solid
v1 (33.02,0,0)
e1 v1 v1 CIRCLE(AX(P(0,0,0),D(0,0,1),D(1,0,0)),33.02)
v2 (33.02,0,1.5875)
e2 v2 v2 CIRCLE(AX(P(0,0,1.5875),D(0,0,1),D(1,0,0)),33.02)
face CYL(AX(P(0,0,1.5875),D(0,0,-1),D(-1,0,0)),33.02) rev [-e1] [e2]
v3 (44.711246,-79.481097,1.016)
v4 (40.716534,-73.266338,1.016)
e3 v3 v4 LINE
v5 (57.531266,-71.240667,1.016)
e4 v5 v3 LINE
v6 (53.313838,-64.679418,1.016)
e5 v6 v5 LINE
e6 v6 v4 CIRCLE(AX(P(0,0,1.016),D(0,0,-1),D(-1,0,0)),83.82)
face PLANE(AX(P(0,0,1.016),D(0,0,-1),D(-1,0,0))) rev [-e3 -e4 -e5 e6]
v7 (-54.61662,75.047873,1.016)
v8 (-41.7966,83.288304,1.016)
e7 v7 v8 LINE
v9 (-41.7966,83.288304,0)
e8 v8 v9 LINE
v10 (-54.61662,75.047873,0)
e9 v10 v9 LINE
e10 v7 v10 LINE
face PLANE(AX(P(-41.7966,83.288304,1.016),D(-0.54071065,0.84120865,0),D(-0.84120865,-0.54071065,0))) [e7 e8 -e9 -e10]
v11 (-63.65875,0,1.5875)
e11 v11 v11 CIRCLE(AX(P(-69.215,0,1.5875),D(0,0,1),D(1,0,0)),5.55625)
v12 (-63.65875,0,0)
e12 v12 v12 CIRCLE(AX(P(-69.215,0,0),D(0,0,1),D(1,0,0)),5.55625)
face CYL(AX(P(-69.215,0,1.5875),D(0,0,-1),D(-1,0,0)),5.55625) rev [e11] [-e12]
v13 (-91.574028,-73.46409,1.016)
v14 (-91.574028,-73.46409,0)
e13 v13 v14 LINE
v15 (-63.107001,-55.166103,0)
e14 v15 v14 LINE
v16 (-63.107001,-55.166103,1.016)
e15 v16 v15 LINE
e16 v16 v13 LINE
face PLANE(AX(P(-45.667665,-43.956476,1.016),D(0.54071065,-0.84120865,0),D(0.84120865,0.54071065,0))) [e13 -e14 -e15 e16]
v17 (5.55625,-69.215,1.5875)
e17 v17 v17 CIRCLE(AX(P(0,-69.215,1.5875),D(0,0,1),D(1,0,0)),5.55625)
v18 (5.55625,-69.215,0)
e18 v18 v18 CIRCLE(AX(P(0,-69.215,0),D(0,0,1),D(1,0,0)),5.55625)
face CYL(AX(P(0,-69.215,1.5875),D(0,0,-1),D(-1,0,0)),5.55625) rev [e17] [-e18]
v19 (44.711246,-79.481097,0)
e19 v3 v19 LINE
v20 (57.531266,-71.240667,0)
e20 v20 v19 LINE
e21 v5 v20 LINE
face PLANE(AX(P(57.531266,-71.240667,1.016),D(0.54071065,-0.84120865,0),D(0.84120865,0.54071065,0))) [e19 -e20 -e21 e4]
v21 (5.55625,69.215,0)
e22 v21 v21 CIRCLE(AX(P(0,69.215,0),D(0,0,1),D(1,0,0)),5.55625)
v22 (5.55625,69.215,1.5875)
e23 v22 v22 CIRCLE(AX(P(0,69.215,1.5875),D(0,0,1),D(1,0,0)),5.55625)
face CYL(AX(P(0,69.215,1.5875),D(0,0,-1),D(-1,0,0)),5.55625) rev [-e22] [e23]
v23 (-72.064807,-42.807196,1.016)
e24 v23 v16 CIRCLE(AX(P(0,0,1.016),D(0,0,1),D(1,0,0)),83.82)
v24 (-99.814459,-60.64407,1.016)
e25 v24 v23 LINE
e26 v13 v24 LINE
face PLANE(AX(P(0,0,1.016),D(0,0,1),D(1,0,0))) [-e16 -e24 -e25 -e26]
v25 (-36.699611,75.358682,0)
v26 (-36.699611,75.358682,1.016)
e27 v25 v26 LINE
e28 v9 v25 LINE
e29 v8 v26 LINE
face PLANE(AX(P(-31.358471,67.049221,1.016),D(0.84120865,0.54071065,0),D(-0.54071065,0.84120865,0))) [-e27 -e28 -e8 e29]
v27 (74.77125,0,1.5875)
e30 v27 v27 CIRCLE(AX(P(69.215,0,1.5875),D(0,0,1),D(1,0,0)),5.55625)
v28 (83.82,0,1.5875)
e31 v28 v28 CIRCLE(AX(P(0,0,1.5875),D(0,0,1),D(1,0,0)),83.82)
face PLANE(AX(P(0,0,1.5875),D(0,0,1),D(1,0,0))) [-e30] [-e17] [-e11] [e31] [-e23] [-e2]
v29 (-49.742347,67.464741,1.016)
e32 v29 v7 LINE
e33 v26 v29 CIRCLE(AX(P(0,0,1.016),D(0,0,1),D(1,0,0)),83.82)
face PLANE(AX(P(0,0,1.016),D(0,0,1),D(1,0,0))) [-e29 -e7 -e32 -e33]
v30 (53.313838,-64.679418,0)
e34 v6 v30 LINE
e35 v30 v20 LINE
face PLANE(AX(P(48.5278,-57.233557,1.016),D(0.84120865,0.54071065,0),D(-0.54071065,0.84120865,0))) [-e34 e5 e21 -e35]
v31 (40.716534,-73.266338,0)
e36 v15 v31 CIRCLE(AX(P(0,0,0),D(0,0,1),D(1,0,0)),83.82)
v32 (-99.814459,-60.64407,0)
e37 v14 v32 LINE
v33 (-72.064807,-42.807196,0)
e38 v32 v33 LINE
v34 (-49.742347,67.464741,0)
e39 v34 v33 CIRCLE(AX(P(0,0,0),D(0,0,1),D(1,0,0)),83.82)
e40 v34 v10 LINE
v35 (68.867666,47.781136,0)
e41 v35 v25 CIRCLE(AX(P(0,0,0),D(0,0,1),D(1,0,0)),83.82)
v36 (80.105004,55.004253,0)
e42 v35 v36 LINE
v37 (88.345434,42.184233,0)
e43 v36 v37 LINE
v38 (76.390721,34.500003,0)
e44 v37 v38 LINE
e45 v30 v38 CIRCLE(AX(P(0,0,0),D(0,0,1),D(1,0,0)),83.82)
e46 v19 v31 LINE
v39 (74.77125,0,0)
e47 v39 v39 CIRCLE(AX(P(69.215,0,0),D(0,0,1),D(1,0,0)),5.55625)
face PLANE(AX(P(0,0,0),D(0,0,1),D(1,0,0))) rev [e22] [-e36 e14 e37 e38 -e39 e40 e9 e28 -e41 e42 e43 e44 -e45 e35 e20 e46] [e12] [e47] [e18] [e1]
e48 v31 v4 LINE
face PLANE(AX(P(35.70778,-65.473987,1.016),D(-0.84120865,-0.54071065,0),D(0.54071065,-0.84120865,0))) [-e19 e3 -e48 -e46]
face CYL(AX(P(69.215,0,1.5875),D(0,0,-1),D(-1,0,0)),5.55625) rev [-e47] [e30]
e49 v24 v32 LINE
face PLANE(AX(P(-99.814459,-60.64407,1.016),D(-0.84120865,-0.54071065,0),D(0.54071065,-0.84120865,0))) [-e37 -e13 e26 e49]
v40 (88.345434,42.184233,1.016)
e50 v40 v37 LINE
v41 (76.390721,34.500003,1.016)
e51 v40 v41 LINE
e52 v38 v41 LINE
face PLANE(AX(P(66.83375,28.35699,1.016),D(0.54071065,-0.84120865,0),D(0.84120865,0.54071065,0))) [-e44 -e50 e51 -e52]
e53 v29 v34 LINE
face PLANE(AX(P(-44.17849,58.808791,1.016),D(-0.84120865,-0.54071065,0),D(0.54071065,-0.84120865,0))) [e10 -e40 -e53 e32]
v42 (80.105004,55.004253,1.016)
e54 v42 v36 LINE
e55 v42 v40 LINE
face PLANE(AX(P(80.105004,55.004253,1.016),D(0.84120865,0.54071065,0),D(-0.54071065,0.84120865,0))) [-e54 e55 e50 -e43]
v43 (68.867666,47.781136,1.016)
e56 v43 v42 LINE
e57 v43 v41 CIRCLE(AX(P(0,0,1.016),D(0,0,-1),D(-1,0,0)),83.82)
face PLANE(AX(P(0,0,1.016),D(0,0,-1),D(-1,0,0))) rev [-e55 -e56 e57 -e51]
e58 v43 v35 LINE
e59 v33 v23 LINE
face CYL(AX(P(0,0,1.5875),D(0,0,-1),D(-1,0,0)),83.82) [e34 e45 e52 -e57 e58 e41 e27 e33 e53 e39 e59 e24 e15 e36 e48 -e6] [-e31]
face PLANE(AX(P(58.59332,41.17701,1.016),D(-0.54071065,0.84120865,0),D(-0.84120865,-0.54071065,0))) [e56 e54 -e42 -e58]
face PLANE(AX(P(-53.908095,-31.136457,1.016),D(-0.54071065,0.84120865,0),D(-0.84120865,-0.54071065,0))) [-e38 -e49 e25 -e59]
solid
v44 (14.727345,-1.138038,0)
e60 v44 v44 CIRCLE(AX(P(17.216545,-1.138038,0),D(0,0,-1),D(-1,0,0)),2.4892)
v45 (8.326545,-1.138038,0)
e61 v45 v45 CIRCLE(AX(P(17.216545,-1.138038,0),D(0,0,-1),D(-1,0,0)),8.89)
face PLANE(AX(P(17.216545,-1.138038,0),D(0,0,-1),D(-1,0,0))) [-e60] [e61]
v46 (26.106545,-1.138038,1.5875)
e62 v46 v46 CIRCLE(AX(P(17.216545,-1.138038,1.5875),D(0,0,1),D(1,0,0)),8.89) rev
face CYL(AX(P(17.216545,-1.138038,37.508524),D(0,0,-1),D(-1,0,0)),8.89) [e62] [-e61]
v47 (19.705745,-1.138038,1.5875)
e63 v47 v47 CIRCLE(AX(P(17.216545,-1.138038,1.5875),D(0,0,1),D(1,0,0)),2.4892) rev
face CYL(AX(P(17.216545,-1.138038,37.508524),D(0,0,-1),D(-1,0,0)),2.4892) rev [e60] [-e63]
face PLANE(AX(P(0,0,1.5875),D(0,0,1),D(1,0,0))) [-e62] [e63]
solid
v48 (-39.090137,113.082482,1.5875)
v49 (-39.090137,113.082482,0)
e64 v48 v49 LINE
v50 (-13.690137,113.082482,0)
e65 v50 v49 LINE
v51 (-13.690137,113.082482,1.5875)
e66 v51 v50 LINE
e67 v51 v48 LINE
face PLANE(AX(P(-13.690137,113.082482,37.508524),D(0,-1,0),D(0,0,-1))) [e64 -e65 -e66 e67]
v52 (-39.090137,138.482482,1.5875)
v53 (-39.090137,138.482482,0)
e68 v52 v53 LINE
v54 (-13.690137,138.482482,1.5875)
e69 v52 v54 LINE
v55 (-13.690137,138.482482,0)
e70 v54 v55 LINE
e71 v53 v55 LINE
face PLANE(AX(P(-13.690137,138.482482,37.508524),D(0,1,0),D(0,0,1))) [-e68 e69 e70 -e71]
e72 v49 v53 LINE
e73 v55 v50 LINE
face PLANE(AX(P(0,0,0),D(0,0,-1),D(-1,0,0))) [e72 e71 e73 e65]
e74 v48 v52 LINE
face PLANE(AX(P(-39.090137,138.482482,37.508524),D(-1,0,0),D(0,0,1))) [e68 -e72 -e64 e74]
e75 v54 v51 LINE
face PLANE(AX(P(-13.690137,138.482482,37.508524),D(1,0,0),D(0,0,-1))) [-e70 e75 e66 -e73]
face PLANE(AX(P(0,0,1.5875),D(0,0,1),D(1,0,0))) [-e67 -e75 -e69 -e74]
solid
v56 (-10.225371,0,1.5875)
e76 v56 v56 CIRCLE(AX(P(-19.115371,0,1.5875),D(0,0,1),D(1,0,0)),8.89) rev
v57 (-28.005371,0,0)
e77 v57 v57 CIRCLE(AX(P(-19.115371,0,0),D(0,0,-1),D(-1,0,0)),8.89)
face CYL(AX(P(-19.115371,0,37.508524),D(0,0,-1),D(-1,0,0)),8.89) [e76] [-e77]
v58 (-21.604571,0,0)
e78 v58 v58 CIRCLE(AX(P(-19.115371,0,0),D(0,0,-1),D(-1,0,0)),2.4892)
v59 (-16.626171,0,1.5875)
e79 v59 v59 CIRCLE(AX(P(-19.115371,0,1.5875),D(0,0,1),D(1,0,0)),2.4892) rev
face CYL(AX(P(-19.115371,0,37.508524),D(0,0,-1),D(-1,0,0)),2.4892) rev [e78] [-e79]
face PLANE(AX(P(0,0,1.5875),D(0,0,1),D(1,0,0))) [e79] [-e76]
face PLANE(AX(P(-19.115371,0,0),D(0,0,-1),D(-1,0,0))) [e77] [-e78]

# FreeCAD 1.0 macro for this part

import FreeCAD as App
import Part
import Sketcher
Q = App.Units.Quantity


def add_polygon(sketch, points):
    """Adds a closed chain of lines whose ends are joined by coincident constraints."""
    first, n = sketch.GeometryCount, len(points)
    for a, b in zip(points, points[1:] + points[:1]):
        sketch.addGeometry(Part.LineSegment(App.Vector(*a, 0), App.Vector(*b, 0)), False)
    for i in range(n):
        sketch.addConstraint(Sketcher.Constraint("Coincident", first + i, 2, first + (i + 1) % n, 1))

doc = App.newDocument("Part")
body = doc.addObject("PartDesign::Body", "Body")

# Sketch on XY plane
sketch1 = doc.addObject("Sketcher::SketchObject", "Sketch")
body.addObject(sketch1)
sketch1.AttachmentSupport = (doc.XY_Plane, [""])
sketch1.MapMode = "FlatFace"
sketch1.addGeometry(Part.Circle(App.Vector(0, 0, 0), App.Vector(0, 0, 1), 83.82), False)
sketch1.addGeometry(Part.Circle(App.Vector(0, -69.215, 0), App.Vector(0, 0, 1), 5.55625), False)
sketch1.addGeometry(Part.Circle(App.Vector(-69.215, 0, 0), App.Vector(0, 0, 1), 5.55625), False)
sketch1.addGeometry(Part.Circle(App.Vector(0, 0, 0), App.Vector(0, 0, 1), 33.02), False)
sketch1.addGeometry(Part.Circle(App.Vector(69.215, 0, 0), App.Vector(0, 0, 1), 5.55625), False)
sketch1.addGeometry(Part.Circle(App.Vector(0, 69.215, 0), App.Vector(0, 0, 1), 5.55625), False)
sketch1.addConstraint(Sketcher.Constraint("Coincident", 0, 3, -1, 1))
sketch1.addConstraint(Sketcher.Constraint("Coincident", 3, 3, -1, 1))
sketch1.addConstraint(Sketcher.Constraint("Equal", 1, 2))
sketch1.addConstraint(Sketcher.Constraint("Equal", 2, 4))
sketch1.addConstraint(Sketcher.Constraint("Equal", 4, 5))
sketch1.addConstraint(Sketcher.Constraint("Symmetric", 2, 3, 4, 3, -1, 1))
sketch1.addConstraint(Sketcher.Constraint("Symmetric", 1, 3, 5, 3, -1, 1))
sketch1.addConstraint(Sketcher.Constraint("PointOnObject", 1, 3, -2))
sketch1.addConstraint(Sketcher.Constraint("PointOnObject", 2, 3, -1))
sketch1.addConstraint(Sketcher.Constraint("Diameter", 0, Q("6.6 in")))
sketch1.addConstraint(Sketcher.Constraint("Diameter", 3, Q("2.6 in")))
sketch1.addConstraint(Sketcher.Constraint("Diameter", 1, Q("0.4375 in")))
sketch1.addConstraint(Sketcher.Constraint("DistanceX", 2, 3, 4, 3, Q("5.45 in")))
sketch1.addConstraint(Sketcher.Constraint("DistanceY", 1, 3, 5, 3, Q("5.45 in")))
pad1 = doc.addObject("PartDesign::Pad", "Pad")
body.addObject(pad1)
pad1.Profile = sketch1
pad1.Length = Q("0.0625 in")

# Sketch on XY plane
sketch2 = doc.addObject("Sketcher::SketchObject", "Sketch001")
body.addObject(sketch2)
sketch2.AttachmentSupport = (doc.XY_Plane, [""])
sketch2.MapMode = "FlatFace"
add_polygon(sketch2, [(66.83375, 28.35699), (58.59332, 41.17701), (80.105004, 55.004253), (88.345434, 42.184233)])  # lines 0-3
add_polygon(sketch2, [(35.70778, -65.473987), (48.5278, -57.233557), (57.531266, -71.240667), (44.711246, -79.481097)])  # lines 4-7
add_polygon(sketch2, [(-31.358471, 67.049221), (-44.17849, 58.808791), (-54.61662, 75.047873), (-41.7966, 83.288304)])  # lines 8-11
add_polygon(sketch2, [(-53.908095, -31.136457), (-45.667665, -43.956476), (-91.574028, -73.46409), (-99.814459, -60.64407)])  # lines 12-15
sketch2.addConstraint(Sketcher.Constraint("Perpendicular", 0, 1))
sketch2.addConstraint(Sketcher.Constraint("Perpendicular", 1, 2))
sketch2.addConstraint(Sketcher.Constraint("Perpendicular", 2, 3))
sketch2.addConstraint(Sketcher.Constraint("Parallel", 3, 4))
sketch2.addConstraint(Sketcher.Constraint("Perpendicular", 4, 5))
sketch2.addConstraint(Sketcher.Constraint("Perpendicular", 5, 6))
sketch2.addConstraint(Sketcher.Constraint("Perpendicular", 6, 7))
sketch2.addConstraint(Sketcher.Constraint("Perpendicular", 7, 8))
sketch2.addConstraint(Sketcher.Constraint("Perpendicular", 8, 9))
sketch2.addConstraint(Sketcher.Constraint("Perpendicular", 9, 10))
sketch2.addConstraint(Sketcher.Constraint("Perpendicular", 10, 11))
sketch2.addConstraint(Sketcher.Constraint("Parallel", 11, 12))
sketch2.addConstraint(Sketcher.Constraint("Perpendicular", 12, 13))
sketch2.addConstraint(Sketcher.Constraint("Perpendicular", 13, 14))
sketch2.addConstraint(Sketcher.Constraint("Perpendicular", 14, 15))
sketch2.addConstraint(Sketcher.Constraint("Equal", 2, 4))
sketch2.addConstraint(Sketcher.Constraint("Equal", 6, 8))
sketch2.addConstraint(Sketcher.Constraint("Equal", 10, 12))
sketch2.addConstraint(Sketcher.Constraint("Distance", 0, Q("0.6 in")))
sketch2.addConstraint(Sketcher.Constraint("DistanceX", -1, 1, 4, 2, Q("48.5278 mm")))
sketch2.addConstraint(Sketcher.Constraint("DistanceX", 10, 2, -1, 1, Q("41.7966 mm")))
sketch2.addConstraint(Sketcher.Constraint("DistanceY", 5, 2, 2, 2, Q("113.4249 mm")))
sketch2.addConstraint(Sketcher.Constraint("DistanceY", 3, 2, 8, 2, Q("30.451801 mm")))
sketch2.addConstraint(Sketcher.Constraint("Distance", 1, Q("25.572352 mm")))
sketch2.addConstraint(Sketcher.Constraint("Distance", 5, Q("16.651171 mm")))
sketch2.addConstraint(Sketcher.Constraint("Distance", 13, Q("54.571911 mm")))
sketch2.addConstraint(Sketcher.Constraint("DistanceX", -1, 1, 0, 2, Q("58.59332 mm")))
sketch2.addConstraint(Sketcher.Constraint("DistanceY", -1, 1, 0, 2, Q("41.17701 mm")))
sketch2.addConstraint(Sketcher.Constraint("DistanceX", -1, 1, 3, 2, Q("66.83375 mm")))
sketch2.addConstraint(Sketcher.Constraint("DistanceX", 8, 2, -1, 1, Q("44.17849 mm")))
sketch2.addConstraint(Sketcher.Constraint("DistanceX", 13, 2, -1, 1, Q("91.574028 mm")))
sketch2.addConstraint(Sketcher.Constraint("DistanceY", 13, 2, -1, 1, Q("73.46409 mm")))
pad2 = doc.addObject("PartDesign::Pad", "Pad001")
body.addObject(pad2)
pad2.Profile = sketch2
pad2.Length = Q("0.04 in")
body2 = doc.addObject("PartDesign::Body", "Body001")

# Sketch on XY plane
sketch3 = doc.addObject("Sketcher::SketchObject", "Sketch002")
body2.addObject(sketch3)
sketch3.AttachmentSupport = (doc.getObject("XY_Plane001"), [""])
sketch3.MapMode = "FlatFace"
sketch3.addGeometry(Part.Circle(App.Vector(17.216545, -1.138038, 0), App.Vector(0, 0, 1), 8.89), False)
sketch3.addGeometry(Part.Circle(App.Vector(17.216545, -1.138038, 0), App.Vector(0, 0, 1), 2.4892), False)
sketch3.addConstraint(Sketcher.Constraint("Coincident", 1, 3, 0, 3))
sketch3.addConstraint(Sketcher.Constraint("Diameter", 0, Q("0.7 in")))
sketch3.addConstraint(Sketcher.Constraint("Diameter", 1, Q("0.196 in")))
sketch3.addConstraint(Sketcher.Constraint("DistanceY", 0, 3, -1, 1, Q("1.138038 mm")))
sketch3.addConstraint(Sketcher.Constraint("DistanceX", -1, 1, 0, 3, Q("17.216545 mm")))
pad3 = doc.addObject("PartDesign::Pad", "Pad002")
body2.addObject(pad3)
pad3.Profile = sketch3
pad3.Length = Q("0.0625 in")
body3 = doc.addObject("PartDesign::Body", "Body002")

# Sketch on XY plane
sketch4 = doc.addObject("Sketcher::SketchObject", "Sketch003")
body3.addObject(sketch4)
sketch4.AttachmentSupport = (doc.getObject("XY_Plane002"), [""])
sketch4.MapMode = "FlatFace"
sketch4.addGeometry(Part.Circle(App.Vector(-19.115371, 0, 0), App.Vector(0, 0, 1), 8.89), False)
sketch4.addGeometry(Part.Circle(App.Vector(-19.115371, 0, 0), App.Vector(0, 0, 1), 2.4892), False)
sketch4.addConstraint(Sketcher.Constraint("Coincident", 1, 3, 0, 3))
sketch4.addConstraint(Sketcher.Constraint("PointOnObject", 0, 3, -1))
sketch4.addConstraint(Sketcher.Constraint("Diameter", 0, Q("0.7 in")))
sketch4.addConstraint(Sketcher.Constraint("Diameter", 1, Q("0.196 in")))
sketch4.addConstraint(Sketcher.Constraint("DistanceX", 0, 3, -1, 1, Q("19.115371 mm")))
pad4 = doc.addObject("PartDesign::Pad", "Pad003")
body3.addObject(pad4)
pad4.Profile = sketch4
pad4.Length = Q("0.0625 in")
body4 = doc.addObject("PartDesign::Body", "Body003")

# Sketch on XY plane
sketch5 = doc.addObject("Sketcher::SketchObject", "Sketch004")
body4.addObject(sketch5)
sketch5.AttachmentSupport = (doc.getObject("XY_Plane003"), [""])
sketch5.MapMode = "FlatFace"
add_polygon(sketch5, [(-13.690137, 138.482482), (-13.690137, 113.082482), (-39.090137, 113.082482), (-39.090137, 138.482482)])  # lines 0-3
sketch5.addConstraint(Sketcher.Constraint("Vertical", 0))
sketch5.addConstraint(Sketcher.Constraint("Horizontal", 1))
sketch5.addConstraint(Sketcher.Constraint("Vertical", 2))
sketch5.addConstraint(Sketcher.Constraint("Horizontal", 3))
sketch5.addConstraint(Sketcher.Constraint("Equal", 3, 0))
sketch5.addConstraint(Sketcher.Constraint("DistanceX", 1, 2, 1, 1, Q("1 in")))
sketch5.addConstraint(Sketcher.Constraint("DistanceX", 0, 2, -1, 1, Q("13.690137 mm")))
sketch5.addConstraint(Sketcher.Constraint("DistanceY", -1, 1, 0, 2, Q("113.082482 mm")))
pad5 = doc.addObject("PartDesign::Pad", "Pad004")
body4.addObject(pad5)
pad5.Profile = sketch5
pad5.Length = Q("0.0625 in")

doc.recompute()
